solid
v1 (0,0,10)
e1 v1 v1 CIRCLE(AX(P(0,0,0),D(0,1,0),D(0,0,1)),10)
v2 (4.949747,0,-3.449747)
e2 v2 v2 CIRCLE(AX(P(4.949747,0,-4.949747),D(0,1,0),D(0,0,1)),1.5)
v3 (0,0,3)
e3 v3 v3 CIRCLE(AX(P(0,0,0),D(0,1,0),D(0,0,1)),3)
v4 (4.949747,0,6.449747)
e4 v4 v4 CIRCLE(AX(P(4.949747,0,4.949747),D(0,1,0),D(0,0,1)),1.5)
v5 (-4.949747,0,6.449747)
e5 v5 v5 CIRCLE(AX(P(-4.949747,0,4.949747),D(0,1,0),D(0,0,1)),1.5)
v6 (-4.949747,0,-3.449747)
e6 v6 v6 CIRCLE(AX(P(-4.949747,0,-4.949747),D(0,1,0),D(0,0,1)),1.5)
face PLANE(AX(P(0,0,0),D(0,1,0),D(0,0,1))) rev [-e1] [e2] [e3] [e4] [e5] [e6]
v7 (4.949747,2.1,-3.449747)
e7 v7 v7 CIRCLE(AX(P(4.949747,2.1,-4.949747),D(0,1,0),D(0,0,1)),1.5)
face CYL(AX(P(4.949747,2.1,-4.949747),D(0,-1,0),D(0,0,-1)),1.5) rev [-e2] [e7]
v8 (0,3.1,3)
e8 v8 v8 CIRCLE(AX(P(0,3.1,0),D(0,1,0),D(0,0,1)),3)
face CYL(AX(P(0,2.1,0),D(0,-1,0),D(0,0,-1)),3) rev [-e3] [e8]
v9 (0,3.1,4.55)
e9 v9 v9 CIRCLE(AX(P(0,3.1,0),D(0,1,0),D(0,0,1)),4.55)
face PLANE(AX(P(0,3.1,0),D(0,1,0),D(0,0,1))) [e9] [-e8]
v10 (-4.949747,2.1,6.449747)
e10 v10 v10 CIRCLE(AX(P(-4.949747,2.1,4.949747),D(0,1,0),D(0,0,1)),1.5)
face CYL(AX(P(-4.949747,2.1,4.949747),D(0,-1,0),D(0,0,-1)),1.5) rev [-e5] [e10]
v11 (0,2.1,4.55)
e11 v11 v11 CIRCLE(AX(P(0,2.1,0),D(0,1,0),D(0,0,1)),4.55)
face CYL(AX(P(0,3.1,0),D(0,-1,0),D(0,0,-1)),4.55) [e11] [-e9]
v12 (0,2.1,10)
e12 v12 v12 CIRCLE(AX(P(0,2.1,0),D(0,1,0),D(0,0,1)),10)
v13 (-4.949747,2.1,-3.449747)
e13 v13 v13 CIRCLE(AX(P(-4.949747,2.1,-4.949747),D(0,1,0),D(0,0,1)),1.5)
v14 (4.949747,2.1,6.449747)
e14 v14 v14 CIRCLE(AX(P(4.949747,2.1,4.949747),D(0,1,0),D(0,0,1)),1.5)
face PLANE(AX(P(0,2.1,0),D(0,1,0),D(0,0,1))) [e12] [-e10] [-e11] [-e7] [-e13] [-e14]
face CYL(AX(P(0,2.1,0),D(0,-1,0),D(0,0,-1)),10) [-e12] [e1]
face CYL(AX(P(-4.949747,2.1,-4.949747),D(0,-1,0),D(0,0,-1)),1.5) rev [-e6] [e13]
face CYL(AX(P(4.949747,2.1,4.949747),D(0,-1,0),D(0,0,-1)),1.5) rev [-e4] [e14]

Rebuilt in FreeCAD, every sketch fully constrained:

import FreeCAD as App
import Part
import Sketcher
Q = App.Units.Quantity

doc = App.newDocument("Part")
body = doc.addObject("PartDesign::Body", "Body")

sketch1 = doc.addObject("Sketcher::SketchObject", "Sketch")
body.addObject(sketch1)
sketch1.AttachmentSupport = (doc.XZ_Plane, [""])
sketch1.MapMode = "FlatFace"
sketch1.addGeometry([
    Part.Circle(App.Vector(0, 0, 0), App.Vector(0, 0, 1), 10),
    Part.Circle(App.Vector(-4.9, -4.9, 0), App.Vector(0, 0, 1), 1.5),
    Part.Circle(App.Vector(-4.9, 4.9, 0), App.Vector(0, 0, 1), 1.5),
    Part.Circle(App.Vector(0, 0, 0), App.Vector(0, 0, 1), 3),
    Part.Circle(App.Vector(4.9, -4.9, 0), App.Vector(0, 0, 1), 1.5),
    Part.Circle(App.Vector(4.9, 4.9, 0), App.Vector(0, 0, 1), 1.5),
], False)
sketch1.addConstraint([
    Sketcher.Constraint("Coincident", 0, 3, -1, 1),
    Sketcher.Constraint("Coincident", 3, 3, -1, 1),
    Sketcher.Constraint("Equal", 1, 2),
    Sketcher.Constraint("Equal", 2, 4),
    Sketcher.Constraint("Equal", 4, 5),
    Sketcher.Constraint("Symmetric", 2, 3, 4, 3, -1, 1),
    Sketcher.Constraint("Symmetric", 1, 3, 5, 3, -1, 1),
    Sketcher.Constraint("Symmetric", 1, 3, 4, 3, -2),
    Sketcher.Constraint("Diameter", 0, Q("20 mm")),
    Sketcher.Constraint("Diameter", 1, Q("3 mm")),
    Sketcher.Constraint("Diameter", 3, Q("6 mm")),
    Sketcher.Constraint("DistanceX", 1, 3, -1, 1, Q("4.949747 mm")),
    Sketcher.Constraint("DistanceY", 1, 3, -1, 1, Q("4.949747 mm")),
])
pad1 = doc.addObject("PartDesign::Pad", "Pad")
body.addObject(pad1)
pad1.Profile = sketch1
pad1.Length = 2.1
pad1.Reversed = True

sketch2 = doc.addObject("Sketcher::SketchObject", "Sketch001")
body.addObject(sketch2)
sketch2.AttachmentSupport = (doc.XZ_Plane, [""])
sketch2.MapMode = "FlatFace"
sketch2.AttachmentOffset = App.Placement(App.Vector(0, 0, -2.1), App.Rotation())
sketch2.addGeometry([
    Part.Circle(App.Vector(0, 0, 0), App.Vector(0, 0, 1), 4.5),
    Part.Circle(App.Vector(0, 0, 0), App.Vector(0, 0, 1), 3),
], False)
sketch2.addConstraint([
    Sketcher.Constraint("Coincident", 0, 3, -1, 1),
    Sketcher.Constraint("Coincident", 1, 3, -1, 1),
    Sketcher.Constraint("Diameter", 1, Q("6 mm")),
    Sketcher.Constraint("Diameter", 0, Q("9.1 mm")),
])
pad2 = doc.addObject("PartDesign::Pad", "Pad001")
body.addObject(pad2)
pad2.Profile = sketch2
pad2.Length = 1
pad2.Reversed = True

doc.recompute()
